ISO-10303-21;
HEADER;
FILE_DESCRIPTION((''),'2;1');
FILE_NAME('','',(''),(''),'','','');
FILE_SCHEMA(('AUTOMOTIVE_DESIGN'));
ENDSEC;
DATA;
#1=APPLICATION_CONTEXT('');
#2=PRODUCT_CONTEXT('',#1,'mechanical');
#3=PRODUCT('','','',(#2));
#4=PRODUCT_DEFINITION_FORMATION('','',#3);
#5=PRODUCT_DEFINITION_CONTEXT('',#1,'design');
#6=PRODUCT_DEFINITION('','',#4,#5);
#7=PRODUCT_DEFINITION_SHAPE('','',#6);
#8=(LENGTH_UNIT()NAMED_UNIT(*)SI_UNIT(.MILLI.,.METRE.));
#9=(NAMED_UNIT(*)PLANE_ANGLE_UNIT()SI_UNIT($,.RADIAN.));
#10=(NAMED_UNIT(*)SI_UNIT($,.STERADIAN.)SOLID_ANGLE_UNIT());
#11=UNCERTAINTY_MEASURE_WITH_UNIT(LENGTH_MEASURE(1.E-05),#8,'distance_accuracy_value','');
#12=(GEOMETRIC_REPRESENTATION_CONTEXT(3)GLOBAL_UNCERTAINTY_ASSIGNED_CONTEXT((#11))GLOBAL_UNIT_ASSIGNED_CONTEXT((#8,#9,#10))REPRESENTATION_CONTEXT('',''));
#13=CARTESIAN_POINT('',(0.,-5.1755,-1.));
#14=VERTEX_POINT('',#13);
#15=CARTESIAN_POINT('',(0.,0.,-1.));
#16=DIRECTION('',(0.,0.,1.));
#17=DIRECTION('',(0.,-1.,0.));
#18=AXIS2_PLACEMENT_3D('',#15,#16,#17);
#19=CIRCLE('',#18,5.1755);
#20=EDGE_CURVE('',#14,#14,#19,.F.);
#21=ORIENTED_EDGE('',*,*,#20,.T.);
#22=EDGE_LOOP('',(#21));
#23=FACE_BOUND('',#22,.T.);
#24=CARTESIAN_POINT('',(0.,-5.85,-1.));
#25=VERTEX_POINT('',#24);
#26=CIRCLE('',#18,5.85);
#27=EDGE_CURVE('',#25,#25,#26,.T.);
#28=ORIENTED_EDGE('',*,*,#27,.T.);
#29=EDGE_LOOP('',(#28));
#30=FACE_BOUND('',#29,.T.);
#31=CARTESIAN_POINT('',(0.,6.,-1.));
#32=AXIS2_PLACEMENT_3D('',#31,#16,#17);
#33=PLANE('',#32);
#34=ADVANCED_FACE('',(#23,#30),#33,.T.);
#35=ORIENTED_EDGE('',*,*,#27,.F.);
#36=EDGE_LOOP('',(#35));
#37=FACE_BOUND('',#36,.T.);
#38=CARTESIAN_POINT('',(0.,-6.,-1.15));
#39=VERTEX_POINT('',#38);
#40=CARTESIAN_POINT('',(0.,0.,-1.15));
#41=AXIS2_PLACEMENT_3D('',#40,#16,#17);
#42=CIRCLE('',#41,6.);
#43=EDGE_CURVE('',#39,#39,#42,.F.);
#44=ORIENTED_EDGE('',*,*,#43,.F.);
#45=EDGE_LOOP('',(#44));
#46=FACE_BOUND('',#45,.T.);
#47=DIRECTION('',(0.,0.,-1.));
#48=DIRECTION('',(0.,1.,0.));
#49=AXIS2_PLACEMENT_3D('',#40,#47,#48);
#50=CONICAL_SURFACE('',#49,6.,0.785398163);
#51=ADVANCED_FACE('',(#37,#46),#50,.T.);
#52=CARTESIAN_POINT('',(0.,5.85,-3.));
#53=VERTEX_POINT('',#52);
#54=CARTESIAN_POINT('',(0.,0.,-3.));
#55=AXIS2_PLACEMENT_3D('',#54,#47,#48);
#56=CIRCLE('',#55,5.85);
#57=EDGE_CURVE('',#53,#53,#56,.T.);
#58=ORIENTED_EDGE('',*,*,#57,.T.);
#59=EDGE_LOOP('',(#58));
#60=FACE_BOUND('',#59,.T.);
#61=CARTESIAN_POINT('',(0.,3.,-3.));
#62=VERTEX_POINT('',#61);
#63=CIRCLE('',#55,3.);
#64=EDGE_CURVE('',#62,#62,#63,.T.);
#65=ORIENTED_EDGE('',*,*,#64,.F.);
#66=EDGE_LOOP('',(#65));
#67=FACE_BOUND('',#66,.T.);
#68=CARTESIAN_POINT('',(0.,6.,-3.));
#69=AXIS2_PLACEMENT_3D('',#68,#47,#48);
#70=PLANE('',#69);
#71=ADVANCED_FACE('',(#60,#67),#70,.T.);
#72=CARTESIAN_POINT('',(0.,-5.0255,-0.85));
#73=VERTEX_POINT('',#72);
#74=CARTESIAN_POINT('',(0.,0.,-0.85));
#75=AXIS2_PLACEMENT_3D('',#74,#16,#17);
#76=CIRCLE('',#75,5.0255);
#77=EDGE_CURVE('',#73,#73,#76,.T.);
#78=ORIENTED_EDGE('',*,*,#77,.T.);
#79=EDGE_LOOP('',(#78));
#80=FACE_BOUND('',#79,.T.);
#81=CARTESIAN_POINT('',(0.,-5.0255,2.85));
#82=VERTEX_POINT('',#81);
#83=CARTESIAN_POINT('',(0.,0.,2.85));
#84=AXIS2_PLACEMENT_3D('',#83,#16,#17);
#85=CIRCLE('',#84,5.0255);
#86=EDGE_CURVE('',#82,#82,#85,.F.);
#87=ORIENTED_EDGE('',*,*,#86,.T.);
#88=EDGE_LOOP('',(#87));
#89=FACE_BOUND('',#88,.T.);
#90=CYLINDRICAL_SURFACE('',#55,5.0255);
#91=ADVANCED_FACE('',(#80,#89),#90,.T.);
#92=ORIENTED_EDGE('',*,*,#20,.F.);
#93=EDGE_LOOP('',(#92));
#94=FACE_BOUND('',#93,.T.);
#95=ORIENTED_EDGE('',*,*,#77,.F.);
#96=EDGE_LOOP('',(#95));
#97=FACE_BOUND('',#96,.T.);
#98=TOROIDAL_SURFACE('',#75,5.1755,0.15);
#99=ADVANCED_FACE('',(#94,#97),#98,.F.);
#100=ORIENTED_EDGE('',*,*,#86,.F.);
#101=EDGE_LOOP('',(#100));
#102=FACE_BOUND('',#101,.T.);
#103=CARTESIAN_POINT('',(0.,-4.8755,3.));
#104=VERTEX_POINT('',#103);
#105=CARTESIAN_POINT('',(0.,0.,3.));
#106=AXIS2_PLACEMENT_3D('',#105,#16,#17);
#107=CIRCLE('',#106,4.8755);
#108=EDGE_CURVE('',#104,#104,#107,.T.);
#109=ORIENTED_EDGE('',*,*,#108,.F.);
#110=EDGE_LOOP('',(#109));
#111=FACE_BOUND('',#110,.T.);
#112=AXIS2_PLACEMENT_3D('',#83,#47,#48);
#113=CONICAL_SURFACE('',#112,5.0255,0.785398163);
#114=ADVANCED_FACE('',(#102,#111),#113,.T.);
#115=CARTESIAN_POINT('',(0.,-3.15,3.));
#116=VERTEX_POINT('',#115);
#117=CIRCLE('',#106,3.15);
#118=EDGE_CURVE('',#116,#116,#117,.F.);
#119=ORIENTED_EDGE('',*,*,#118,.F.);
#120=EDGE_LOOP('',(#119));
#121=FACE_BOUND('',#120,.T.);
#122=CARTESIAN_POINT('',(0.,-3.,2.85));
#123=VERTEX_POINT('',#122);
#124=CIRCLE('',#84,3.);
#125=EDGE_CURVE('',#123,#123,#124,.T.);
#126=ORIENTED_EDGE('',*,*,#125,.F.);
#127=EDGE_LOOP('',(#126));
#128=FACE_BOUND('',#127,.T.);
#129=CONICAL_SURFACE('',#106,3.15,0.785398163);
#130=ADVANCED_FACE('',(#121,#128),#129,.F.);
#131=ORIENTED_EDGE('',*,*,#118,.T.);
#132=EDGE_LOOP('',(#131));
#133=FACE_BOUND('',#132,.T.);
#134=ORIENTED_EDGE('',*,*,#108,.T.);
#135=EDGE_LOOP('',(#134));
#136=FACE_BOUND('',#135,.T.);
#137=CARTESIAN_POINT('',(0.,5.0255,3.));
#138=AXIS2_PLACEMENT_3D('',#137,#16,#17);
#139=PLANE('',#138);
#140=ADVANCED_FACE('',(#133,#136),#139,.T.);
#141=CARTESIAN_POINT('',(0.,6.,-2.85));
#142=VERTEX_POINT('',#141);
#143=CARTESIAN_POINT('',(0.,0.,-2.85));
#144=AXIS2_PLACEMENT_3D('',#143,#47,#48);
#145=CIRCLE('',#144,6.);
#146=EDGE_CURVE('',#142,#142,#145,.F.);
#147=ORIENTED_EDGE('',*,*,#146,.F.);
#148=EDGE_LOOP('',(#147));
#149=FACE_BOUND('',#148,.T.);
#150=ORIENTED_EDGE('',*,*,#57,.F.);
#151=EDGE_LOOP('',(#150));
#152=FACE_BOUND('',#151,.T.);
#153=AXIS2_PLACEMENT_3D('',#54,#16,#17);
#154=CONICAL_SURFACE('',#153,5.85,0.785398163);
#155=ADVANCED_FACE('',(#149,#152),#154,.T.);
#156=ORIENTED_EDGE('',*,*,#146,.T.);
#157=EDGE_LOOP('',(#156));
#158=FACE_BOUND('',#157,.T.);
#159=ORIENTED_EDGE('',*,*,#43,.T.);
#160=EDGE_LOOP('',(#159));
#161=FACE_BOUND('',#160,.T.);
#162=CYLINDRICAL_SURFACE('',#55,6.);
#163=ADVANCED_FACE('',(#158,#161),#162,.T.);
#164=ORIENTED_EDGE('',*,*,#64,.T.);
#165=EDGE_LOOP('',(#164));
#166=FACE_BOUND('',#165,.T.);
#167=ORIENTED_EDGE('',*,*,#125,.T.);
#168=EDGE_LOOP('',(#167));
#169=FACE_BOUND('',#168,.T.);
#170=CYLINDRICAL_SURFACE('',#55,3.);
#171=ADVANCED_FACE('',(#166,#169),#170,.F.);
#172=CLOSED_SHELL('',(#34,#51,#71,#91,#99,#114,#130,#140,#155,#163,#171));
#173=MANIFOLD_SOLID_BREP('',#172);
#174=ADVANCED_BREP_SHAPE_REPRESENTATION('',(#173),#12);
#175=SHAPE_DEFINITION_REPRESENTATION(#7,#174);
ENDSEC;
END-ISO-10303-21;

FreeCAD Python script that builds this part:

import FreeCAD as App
import Part
import Sketcher

V = App.Vector


def edges_at(feature, points):
    """Names of the edges that pass closest to the given points."""
    edges = feature.Shape.Edges
    near = lambda p: min(range(len(edges)), key=lambda i: edges[i].distToShape(Part.Vertex(*p))[0])
    return sorted({f"Edge{near(p) + 1}" for p in points})

doc = App.newDocument("Part")
body = doc.addObject("PartDesign::Body", "Body")

# Sketch on YZ plane
sketch1 = body.newObject("Sketcher::SketchObject", "Sketch")
sketch1.AttachmentSupport = (doc.getObject("YZ_Plane"), [""])
sketch1.MapMode = "FlatFace"
sketch1.addGeometry(Part.LineSegment(V(6, -3, 0), V(6, -1, 0)), False)
sketch1.addGeometry(Part.LineSegment(V(6, -1, 0), V(5.0255, -1, 0)), False)
sketch1.addGeometry(Part.LineSegment(V(5.0255, -1, 0), V(5.0255, 3, 0)), False)
sketch1.addGeometry(Part.LineSegment(V(5.0255, 3, 0), V(3, 3, 0)), False)
sketch1.addGeometry(Part.LineSegment(V(3, 3, 0), V(3, -3, 0)), False)
sketch1.addGeometry(Part.LineSegment(V(3, -3, 0), V(6, -3, 0)), False)
sketch1.addConstraint(Sketcher.Constraint("Coincident", 0, 2, 1, 1))
sketch1.addConstraint(Sketcher.Constraint("Coincident", 1, 2, 2, 1))
sketch1.addConstraint(Sketcher.Constraint("Coincident", 2, 2, 3, 1))
sketch1.addConstraint(Sketcher.Constraint("Coincident", 3, 2, 4, 1))
sketch1.addConstraint(Sketcher.Constraint("Coincident", 4, 2, 5, 1))
sketch1.addConstraint(Sketcher.Constraint("Coincident", 5, 2, 0, 1))
sketch1.addConstraint(Sketcher.Constraint("Vertical", 0))
sketch1.addConstraint(Sketcher.Constraint("Horizontal", 1))
sketch1.addConstraint(Sketcher.Constraint("Vertical", 2))
sketch1.addConstraint(Sketcher.Constraint("Horizontal", 3))
sketch1.addConstraint(Sketcher.Constraint("Vertical", 4))
sketch1.addConstraint(Sketcher.Constraint("Horizontal", 5))
sketch1.addConstraint(Sketcher.Constraint("DistanceX", 5, 1, 5, 2, 3.0))
sketch1.addConstraint(Sketcher.Constraint("DistanceY", 0, 1, 0, 2, 2.0))
sketch1.addConstraint(Sketcher.Constraint("DistanceY", 2, 1, 2, 2, 4.0))
sketch1.addConstraint(Sketcher.Constraint("DistanceX", -1, 1, 0, 2, 6.0))
sketch1.addConstraint(Sketcher.Constraint("DistanceY", 0, 2, -1, 1, 1.0))
sketch1.addConstraint(Sketcher.Constraint("DistanceX", 1, 2, 1, 1, 0.9745))
revolution = body.newObject("PartDesign::Revolution", "Revolution")
revolution.Profile = sketch1
revolution.ReferenceAxis = (sketch1, ["V_Axis"])
revolution.Angle = 360
doc.recompute()

chamfer = body.newObject("PartDesign::Chamfer", "Chamfer")
chamfer.Base = (revolution, edges_at(revolution, [
    (0, -3, 3),
    (0, -5.026, 3),
    (0, -6, -1),
    (0, -6, -3),
]))
chamfer.Size = 0.15
doc.recompute()

fillet = body.newObject("PartDesign::Fillet", "Fillet")
fillet.Base = (chamfer, edges_at(chamfer, [(0, -5.026, -1)]))
fillet.Radius = 0.15

doc.recompute()
